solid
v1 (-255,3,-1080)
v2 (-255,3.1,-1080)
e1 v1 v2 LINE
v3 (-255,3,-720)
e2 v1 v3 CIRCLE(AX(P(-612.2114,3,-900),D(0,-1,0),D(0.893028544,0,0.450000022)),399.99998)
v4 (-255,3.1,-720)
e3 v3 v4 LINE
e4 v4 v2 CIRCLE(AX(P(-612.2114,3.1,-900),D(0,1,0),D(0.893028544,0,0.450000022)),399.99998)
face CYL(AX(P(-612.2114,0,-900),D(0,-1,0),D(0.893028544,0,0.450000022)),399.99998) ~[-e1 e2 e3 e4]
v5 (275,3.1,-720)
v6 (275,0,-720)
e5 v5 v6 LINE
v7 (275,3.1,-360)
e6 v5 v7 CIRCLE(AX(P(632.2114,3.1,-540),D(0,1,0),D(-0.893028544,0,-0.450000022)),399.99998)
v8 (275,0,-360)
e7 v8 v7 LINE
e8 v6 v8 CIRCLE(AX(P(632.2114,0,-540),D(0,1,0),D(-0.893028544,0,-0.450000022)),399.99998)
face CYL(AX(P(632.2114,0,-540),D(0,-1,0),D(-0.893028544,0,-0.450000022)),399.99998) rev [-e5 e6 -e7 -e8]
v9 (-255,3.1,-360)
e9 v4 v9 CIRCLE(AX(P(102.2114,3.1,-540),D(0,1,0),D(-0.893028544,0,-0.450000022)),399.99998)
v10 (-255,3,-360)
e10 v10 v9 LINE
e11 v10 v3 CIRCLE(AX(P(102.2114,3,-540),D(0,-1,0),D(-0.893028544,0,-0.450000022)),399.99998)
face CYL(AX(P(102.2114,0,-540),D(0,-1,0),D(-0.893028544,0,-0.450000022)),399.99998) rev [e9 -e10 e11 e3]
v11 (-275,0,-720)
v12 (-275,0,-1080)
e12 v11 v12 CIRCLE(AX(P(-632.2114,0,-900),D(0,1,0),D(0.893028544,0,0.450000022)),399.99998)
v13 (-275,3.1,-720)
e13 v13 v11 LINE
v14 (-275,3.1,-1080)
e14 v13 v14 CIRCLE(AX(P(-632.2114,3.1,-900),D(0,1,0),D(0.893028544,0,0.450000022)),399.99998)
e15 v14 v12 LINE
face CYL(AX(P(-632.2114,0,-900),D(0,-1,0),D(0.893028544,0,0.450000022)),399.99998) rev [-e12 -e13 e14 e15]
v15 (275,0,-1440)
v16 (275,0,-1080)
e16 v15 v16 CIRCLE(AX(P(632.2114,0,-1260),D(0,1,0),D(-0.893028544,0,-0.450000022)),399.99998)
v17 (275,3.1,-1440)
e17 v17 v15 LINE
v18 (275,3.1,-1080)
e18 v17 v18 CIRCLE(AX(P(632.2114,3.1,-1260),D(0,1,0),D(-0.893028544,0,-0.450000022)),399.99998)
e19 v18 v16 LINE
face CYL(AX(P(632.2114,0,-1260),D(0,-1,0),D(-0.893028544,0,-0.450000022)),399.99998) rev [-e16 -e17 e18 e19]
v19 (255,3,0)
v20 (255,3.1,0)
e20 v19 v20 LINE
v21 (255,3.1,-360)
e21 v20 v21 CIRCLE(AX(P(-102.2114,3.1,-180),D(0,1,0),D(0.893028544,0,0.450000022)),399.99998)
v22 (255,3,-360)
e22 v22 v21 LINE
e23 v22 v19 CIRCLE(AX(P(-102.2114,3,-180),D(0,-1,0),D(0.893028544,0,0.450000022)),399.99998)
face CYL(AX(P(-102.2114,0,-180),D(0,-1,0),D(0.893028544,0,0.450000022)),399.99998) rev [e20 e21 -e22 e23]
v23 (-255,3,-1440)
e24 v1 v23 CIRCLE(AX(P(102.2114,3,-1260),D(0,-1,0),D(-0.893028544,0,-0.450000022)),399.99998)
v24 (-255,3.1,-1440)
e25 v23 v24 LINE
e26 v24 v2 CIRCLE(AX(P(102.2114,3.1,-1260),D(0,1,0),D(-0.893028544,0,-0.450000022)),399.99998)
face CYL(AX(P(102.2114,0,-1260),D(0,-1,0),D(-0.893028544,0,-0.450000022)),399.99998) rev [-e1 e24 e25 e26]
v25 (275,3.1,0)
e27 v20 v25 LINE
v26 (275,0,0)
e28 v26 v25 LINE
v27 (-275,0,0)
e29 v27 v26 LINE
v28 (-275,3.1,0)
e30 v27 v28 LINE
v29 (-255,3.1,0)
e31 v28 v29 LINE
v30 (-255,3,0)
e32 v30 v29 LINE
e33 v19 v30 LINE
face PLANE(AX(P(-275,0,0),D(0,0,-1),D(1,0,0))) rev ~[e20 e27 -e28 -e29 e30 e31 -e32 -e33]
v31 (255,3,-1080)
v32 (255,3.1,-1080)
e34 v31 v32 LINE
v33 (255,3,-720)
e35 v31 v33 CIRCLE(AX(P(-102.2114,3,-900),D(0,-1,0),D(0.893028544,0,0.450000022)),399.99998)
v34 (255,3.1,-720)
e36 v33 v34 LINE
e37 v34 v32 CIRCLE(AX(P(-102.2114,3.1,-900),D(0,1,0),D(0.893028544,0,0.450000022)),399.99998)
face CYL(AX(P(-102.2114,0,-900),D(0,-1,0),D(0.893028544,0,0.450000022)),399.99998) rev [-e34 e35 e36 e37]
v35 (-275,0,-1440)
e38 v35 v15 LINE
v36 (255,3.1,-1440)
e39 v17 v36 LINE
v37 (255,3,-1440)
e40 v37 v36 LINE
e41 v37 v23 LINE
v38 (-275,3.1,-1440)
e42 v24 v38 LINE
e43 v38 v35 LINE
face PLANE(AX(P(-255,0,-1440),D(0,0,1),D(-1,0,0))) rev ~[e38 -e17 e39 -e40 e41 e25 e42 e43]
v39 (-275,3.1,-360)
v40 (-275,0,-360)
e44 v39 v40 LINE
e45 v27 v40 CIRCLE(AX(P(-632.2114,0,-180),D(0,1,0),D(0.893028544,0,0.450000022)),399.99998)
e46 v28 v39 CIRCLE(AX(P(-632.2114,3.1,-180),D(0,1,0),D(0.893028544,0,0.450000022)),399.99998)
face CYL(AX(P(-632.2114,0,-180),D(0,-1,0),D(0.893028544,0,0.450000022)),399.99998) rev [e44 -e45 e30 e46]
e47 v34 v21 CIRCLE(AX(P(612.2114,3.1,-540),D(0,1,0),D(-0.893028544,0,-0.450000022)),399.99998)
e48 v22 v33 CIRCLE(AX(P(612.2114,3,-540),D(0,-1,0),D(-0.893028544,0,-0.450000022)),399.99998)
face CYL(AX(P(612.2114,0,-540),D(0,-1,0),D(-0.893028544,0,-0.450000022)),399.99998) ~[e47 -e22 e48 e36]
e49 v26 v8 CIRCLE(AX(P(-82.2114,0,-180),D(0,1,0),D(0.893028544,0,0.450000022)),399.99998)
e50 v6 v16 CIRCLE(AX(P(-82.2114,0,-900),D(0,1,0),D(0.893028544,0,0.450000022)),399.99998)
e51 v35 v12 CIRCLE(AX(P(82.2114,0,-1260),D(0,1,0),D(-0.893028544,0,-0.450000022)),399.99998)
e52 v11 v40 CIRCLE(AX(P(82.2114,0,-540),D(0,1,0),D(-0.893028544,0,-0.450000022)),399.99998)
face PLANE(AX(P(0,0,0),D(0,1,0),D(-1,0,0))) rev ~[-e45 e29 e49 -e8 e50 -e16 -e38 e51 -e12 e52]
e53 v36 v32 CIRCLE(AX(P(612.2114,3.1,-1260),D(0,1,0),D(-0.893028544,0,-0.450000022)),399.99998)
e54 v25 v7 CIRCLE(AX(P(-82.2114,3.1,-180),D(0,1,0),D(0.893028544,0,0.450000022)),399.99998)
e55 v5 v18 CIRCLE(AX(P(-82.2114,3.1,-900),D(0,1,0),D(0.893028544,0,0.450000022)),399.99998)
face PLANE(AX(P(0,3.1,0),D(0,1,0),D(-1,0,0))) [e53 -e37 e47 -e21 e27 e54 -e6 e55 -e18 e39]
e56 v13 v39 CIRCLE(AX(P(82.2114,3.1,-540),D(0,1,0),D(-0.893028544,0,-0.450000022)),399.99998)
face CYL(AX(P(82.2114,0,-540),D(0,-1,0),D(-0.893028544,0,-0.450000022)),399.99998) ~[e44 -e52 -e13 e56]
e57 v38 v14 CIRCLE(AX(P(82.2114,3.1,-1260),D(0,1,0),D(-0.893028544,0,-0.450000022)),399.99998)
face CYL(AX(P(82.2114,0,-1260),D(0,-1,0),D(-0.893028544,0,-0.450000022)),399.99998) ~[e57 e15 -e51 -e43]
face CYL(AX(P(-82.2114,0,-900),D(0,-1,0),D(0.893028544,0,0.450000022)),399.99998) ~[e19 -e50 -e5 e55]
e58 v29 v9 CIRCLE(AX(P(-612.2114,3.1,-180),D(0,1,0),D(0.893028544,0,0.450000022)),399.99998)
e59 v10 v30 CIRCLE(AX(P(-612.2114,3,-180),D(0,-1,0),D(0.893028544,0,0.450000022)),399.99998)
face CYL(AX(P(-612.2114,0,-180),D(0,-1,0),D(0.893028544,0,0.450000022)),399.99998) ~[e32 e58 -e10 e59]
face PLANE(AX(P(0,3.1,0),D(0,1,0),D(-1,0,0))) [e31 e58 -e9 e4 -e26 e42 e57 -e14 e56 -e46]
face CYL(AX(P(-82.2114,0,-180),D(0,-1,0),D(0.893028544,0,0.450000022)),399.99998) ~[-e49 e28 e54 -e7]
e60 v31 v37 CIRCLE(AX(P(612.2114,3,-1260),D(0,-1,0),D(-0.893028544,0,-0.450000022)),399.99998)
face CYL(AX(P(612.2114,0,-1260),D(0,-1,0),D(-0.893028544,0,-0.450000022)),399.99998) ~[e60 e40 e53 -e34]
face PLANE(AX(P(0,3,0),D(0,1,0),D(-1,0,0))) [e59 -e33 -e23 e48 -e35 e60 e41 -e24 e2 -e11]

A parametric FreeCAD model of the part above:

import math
import FreeCAD as App
import Part
import Sketcher

doc = App.newDocument("Part")
body = doc.addObject("PartDesign::Body", "Body")

# Sketch on XZ plane
sketch1 = body.newObject("Sketcher::SketchObject", "Sketch")
sketch1.AttachmentSupport = (doc.getObject("XZ_Plane"), [""])
sketch1.MapMode = "FlatFace"
sketch1.addGeometry(Part.ArcOfCircle(Part.Circle(App.Vector(-632, -180, 0), App.Vector(0, 0, 1), 400), math.radians(-27), math.radians(27)), False)
sketch1.addGeometry(Part.LineSegment(App.Vector(-275, 0, 0), App.Vector(275, 0, 0)), False)
sketch1.addGeometry(Part.ArcOfCircle(Part.Circle(App.Vector(-82, -180, 0), App.Vector(0, 0, 1), 400), math.radians(-27), math.radians(27)), False)
sketch1.addGeometry(Part.ArcOfCircle(Part.Circle(App.Vector(632, -540, 0), App.Vector(0, 0, 1), 400), math.radians(153), math.radians(207)), False)
sketch1.addGeometry(Part.ArcOfCircle(Part.Circle(App.Vector(-82, -900, 0), App.Vector(0, 0, 1), 400), math.radians(-27), math.radians(27)), False)
sketch1.addGeometry(Part.ArcOfCircle(Part.Circle(App.Vector(632, -1260, 0), App.Vector(0, 0, 1), 400), math.radians(153), math.radians(207)), False)
sketch1.addGeometry(Part.LineSegment(App.Vector(275, -1440, 0), App.Vector(-275, -1440, 0)), False)
sketch1.addGeometry(Part.ArcOfCircle(Part.Circle(App.Vector(82, -1260, 0), App.Vector(0, 0, 1), 400), math.radians(153), math.radians(207)), False)
sketch1.addGeometry(Part.ArcOfCircle(Part.Circle(App.Vector(-632, -900, 0), App.Vector(0, 0, 1), 400), math.radians(-27), math.radians(27)), False)
sketch1.addGeometry(Part.ArcOfCircle(Part.Circle(App.Vector(82, -540, 0), App.Vector(0, 0, 1), 400), math.radians(153), math.radians(207)), False)
sketch1.addConstraint(Sketcher.Constraint("Coincident", 0, 2, 1, 1))
sketch1.addConstraint(Sketcher.Constraint("Coincident", 1, 2, 2, 2))
sketch1.addConstraint(Sketcher.Constraint("Tangent", 2, 1, 3, 1))
sketch1.addConstraint(Sketcher.Constraint("Tangent", 3, 2, 4, 2))
sketch1.addConstraint(Sketcher.Constraint("Tangent", 4, 1, 5, 1))
sketch1.addConstraint(Sketcher.Constraint("Coincident", 5, 2, 6, 1))
sketch1.addConstraint(Sketcher.Constraint("Coincident", 6, 2, 7, 2))
sketch1.addConstraint(Sketcher.Constraint("Tangent", 7, 1, 8, 1))
sketch1.addConstraint(Sketcher.Constraint("Tangent", 8, 2, 9, 2))
sketch1.addConstraint(Sketcher.Constraint("Tangent", 9, 1, 0, 1))
sketch1.addConstraint(Sketcher.Constraint("Horizontal", 1))
sketch1.addConstraint(Sketcher.Constraint("Horizontal", 6))
sketch1.addConstraint(Sketcher.Constraint("Equal", 0, 2))
sketch1.addConstraint(Sketcher.Constraint("Equal", 2, 3))
sketch1.addConstraint(Sketcher.Constraint("Equal", 3, 4))
sketch1.addConstraint(Sketcher.Constraint("Equal", 4, 5))
sketch1.addConstraint(Sketcher.Constraint("Equal", 5, 7))
sketch1.addConstraint(Sketcher.Constraint("Equal", 7, 8))
sketch1.addConstraint(Sketcher.Constraint("Equal", 8, 9))
sketch1.addConstraint(Sketcher.Constraint("Symmetric", 0, 2, 1, 2, -1, 1))
sketch1.addConstraint(Sketcher.Constraint("Horizontal", 0, 3, 2, 3))
sketch1.addConstraint(Sketcher.Constraint("Horizontal", 5, 3, 7, 3))
sketch1.addConstraint(Sketcher.Constraint("Horizontal", 4, 3, 8, 3))
sketch1.addConstraint(Sketcher.Constraint("Horizontal", 3, 3, 9, 3))
sketch1.addConstraint(Sketcher.Constraint("Vertical", 2, 3, 4, 3))
sketch1.addConstraint(Sketcher.Constraint("Vertical", 3, 3, 5, 3))
sketch1.addConstraint(Sketcher.Constraint("Vertical", 0, 2, 6, 2))
sketch1.addConstraint(Sketcher.Constraint("Radius", 0, 400.0))
sketch1.addConstraint(Sketcher.Constraint("DistanceX", 1, 1, 1, 2, 550.0))
sketch1.addConstraint(Sketcher.Constraint("DistanceY", 3, 3, 2, 3, 360.0))
sketch1.addConstraint(Sketcher.Constraint("DistanceY", 0, 3, -1, 1, 180.0))
pad1 = body.newObject("PartDesign::Pad", "Pad")
pad1.Profile = sketch1
pad1.Length = 3
pad1.Reversed = True

# Sketch on XZ plane
sketch2 = body.newObject("Sketcher::SketchObject", "Sketch001")
sketch2.AttachmentSupport = (doc.getObject("XZ_Plane"), [""])
sketch2.MapMode = "FlatFace"
sketch2.addGeometry(Part.ArcOfCircle(Part.Circle(App.Vector(-632, -180, 0), App.Vector(0, 0, 1), 400), math.radians(-27), math.radians(27)), False)
sketch2.addGeometry(Part.LineSegment(App.Vector(-275, 0, 0), App.Vector(-255, 0, 0)), False)
sketch2.addGeometry(Part.ArcOfCircle(Part.Circle(App.Vector(-612, -180, 0), App.Vector(0, 0, 1), 400), math.radians(-27), math.radians(27)), False)
sketch2.addGeometry(Part.ArcOfCircle(Part.Circle(App.Vector(102, -540, 0), App.Vector(0, 0, 1), 400), math.radians(153), math.radians(207)), False)
sketch2.addGeometry(Part.ArcOfCircle(Part.Circle(App.Vector(-612, -900, 0), App.Vector(0, 0, 1), 400), math.radians(-27), math.radians(27)), False)
sketch2.addGeometry(Part.ArcOfCircle(Part.Circle(App.Vector(102, -1260, 0), App.Vector(0, 0, 1), 400), math.radians(153), math.radians(207)), False)
sketch2.addGeometry(Part.LineSegment(App.Vector(-255, -1440, 0), App.Vector(-275, -1440, 0)), False)
sketch2.addGeometry(Part.ArcOfCircle(Part.Circle(App.Vector(82, -1260, 0), App.Vector(0, 0, 1), 400), math.radians(153), math.radians(207)), False)
sketch2.addGeometry(Part.ArcOfCircle(Part.Circle(App.Vector(-632, -900, 0), App.Vector(0, 0, 1), 400), math.radians(-27), math.radians(27)), False)
sketch2.addGeometry(Part.ArcOfCircle(Part.Circle(App.Vector(82, -540, 0), App.Vector(0, 0, 1), 400), math.radians(153), math.radians(207)), False)
sketch2.addGeometry(Part.ArcOfCircle(Part.Circle(App.Vector(-102, -180, 0), App.Vector(0, 0, 1), 400), math.radians(-27), math.radians(27)), False)
sketch2.addGeometry(Part.LineSegment(App.Vector(255, 0, 0), App.Vector(275, 0, 0)), False)
sketch2.addGeometry(Part.ArcOfCircle(Part.Circle(App.Vector(-82, -180, 0), App.Vector(0, 0, 1), 400), math.radians(-27), math.radians(27)), False)
sketch2.addGeometry(Part.ArcOfCircle(Part.Circle(App.Vector(632, -540, 0), App.Vector(0, 0, 1), 400), math.radians(153), math.radians(207)), False)
sketch2.addGeometry(Part.ArcOfCircle(Part.Circle(App.Vector(-82, -900, 0), App.Vector(0, 0, 1), 400), math.radians(-27), math.radians(27)), False)
sketch2.addGeometry(Part.ArcOfCircle(Part.Circle(App.Vector(632, -1260, 0), App.Vector(0, 0, 1), 400), math.radians(153), math.radians(207)), False)
sketch2.addGeometry(Part.LineSegment(App.Vector(275, -1440, 0), App.Vector(255, -1440, 0)), False)
sketch2.addGeometry(Part.ArcOfCircle(Part.Circle(App.Vector(612, -1260, 0), App.Vector(0, 0, 1), 400), math.radians(153), math.radians(207)), False)
sketch2.addGeometry(Part.ArcOfCircle(Part.Circle(App.Vector(-102, -900, 0), App.Vector(0, 0, 1), 400), math.radians(-27), math.radians(27)), False)
sketch2.addGeometry(Part.ArcOfCircle(Part.Circle(App.Vector(612, -540, 0), App.Vector(0, 0, 1), 400), math.radians(153), math.radians(207)), False)
sketch2.addConstraint(Sketcher.Constraint("Coincident", 0, 2, 1, 1))
sketch2.addConstraint(Sketcher.Constraint("Coincident", 1, 2, 2, 2))
sketch2.addConstraint(Sketcher.Constraint("Tangent", 2, 1, 3, 1))
sketch2.addConstraint(Sketcher.Constraint("Tangent", 3, 2, 4, 2))
sketch2.addConstraint(Sketcher.Constraint("Tangent", 4, 1, 5, 1))
sketch2.addConstraint(Sketcher.Constraint("Coincident", 5, 2, 6, 1))
sketch2.addConstraint(Sketcher.Constraint("Coincident", 6, 2, 7, 2))
sketch2.addConstraint(Sketcher.Constraint("Tangent", 7, 1, 8, 1))
sketch2.addConstraint(Sketcher.Constraint("Tangent", 8, 2, 9, 2))
sketch2.addConstraint(Sketcher.Constraint("Tangent", 9, 1, 0, 1))
sketch2.addConstraint(Sketcher.Constraint("Coincident", 10, 2, 11, 1))
sketch2.addConstraint(Sketcher.Constraint("Coincident", 11, 2, 12, 2))
sketch2.addConstraint(Sketcher.Constraint("Tangent", 12, 1, 13, 1))
sketch2.addConstraint(Sketcher.Constraint("Tangent", 13, 2, 14, 2))
sketch2.addConstraint(Sketcher.Constraint("Tangent", 14, 1, 15, 1))
sketch2.addConstraint(Sketcher.Constraint("Coincident", 15, 2, 16, 1))
sketch2.addConstraint(Sketcher.Constraint("Coincident", 16, 2, 17, 2))
sketch2.addConstraint(Sketcher.Constraint("Tangent", 17, 1, 18, 1))
sketch2.addConstraint(Sketcher.Constraint("Tangent", 18, 2, 19, 2))
sketch2.addConstraint(Sketcher.Constraint("Tangent", 19, 1, 10, 1))
sketch2.addConstraint(Sketcher.Constraint("Horizontal", 1))
sketch2.addConstraint(Sketcher.Constraint("Horizontal", 6))
sketch2.addConstraint(Sketcher.Constraint("Horizontal", 11))
sketch2.addConstraint(Sketcher.Constraint("Horizontal", 16))
sketch2.addConstraint(Sketcher.Constraint("Equal", 0, 2))
sketch2.addConstraint(Sketcher.Constraint("Equal", 2, 3))
sketch2.addConstraint(Sketcher.Constraint("Equal", 3, 4))
sketch2.addConstraint(Sketcher.Constraint("Equal", 4, 5))
sketch2.addConstraint(Sketcher.Constraint("Equal", 5, 7))
sketch2.addConstraint(Sketcher.Constraint("Equal", 7, 8))
sketch2.addConstraint(Sketcher.Constraint("Equal", 8, 9))
sketch2.addConstraint(Sketcher.Constraint("Equal", 9, 10))
sketch2.addConstraint(Sketcher.Constraint("Equal", 10, 12))
sketch2.addConstraint(Sketcher.Constraint("Equal", 12, 13))
sketch2.addConstraint(Sketcher.Constraint("Equal", 13, 14))
sketch2.addConstraint(Sketcher.Constraint("Equal", 14, 15))
sketch2.addConstraint(Sketcher.Constraint("Equal", 15, 17))
sketch2.addConstraint(Sketcher.Constraint("Equal", 17, 18))
sketch2.addConstraint(Sketcher.Constraint("Equal", 18, 19))
sketch2.addConstraint(Sketcher.Constraint("Symmetric", 1, 2, 10, 2, -1, 1))
sketch2.addConstraint(Sketcher.Constraint("Symmetric", 0, 2, 11, 2, -2))
sketch2.addConstraint(Sketcher.Constraint("Symmetric", 6, 2, 15, 2, -2))
sketch2.addConstraint(Sketcher.Constraint("Horizontal", 0, 3, 2, 3))
sketch2.addConstraint(Sketcher.Constraint("Horizontal", 5, 3, 7, 3))
sketch2.addConstraint(Sketcher.Constraint("Horizontal", 4, 3, 8, 3))
sketch2.addConstraint(Sketcher.Constraint("Horizontal", 3, 3, 9, 3))
sketch2.addConstraint(Sketcher.Constraint("Horizontal", 2, 3, 10, 3))
sketch2.addConstraint(Sketcher.Constraint("Horizontal", 10, 3, 12, 3))
sketch2.addConstraint(Sketcher.Constraint("Horizontal", 9, 3, 13, 3))
sketch2.addConstraint(Sketcher.Constraint("Horizontal", 8, 3, 14, 3))
sketch2.addConstraint(Sketcher.Constraint("Horizontal", 7, 3, 15, 3))
sketch2.addConstraint(Sketcher.Constraint("Horizontal", 15, 3, 17, 3))
sketch2.addConstraint(Sketcher.Constraint("Horizontal", 14, 3, 18, 3))
sketch2.addConstraint(Sketcher.Constraint("Horizontal", 13, 3, 19, 3))
sketch2.addConstraint(Sketcher.Constraint("Vertical", 2, 3, 4, 3))
sketch2.addConstraint(Sketcher.Constraint("Vertical", 3, 3, 5, 3))
sketch2.addConstraint(Sketcher.Constraint("Radius", 0, 400.0))
sketch2.addConstraint(Sketcher.Constraint("DistanceX", 1, 1, 1, 2, 20.0))
sketch2.addConstraint(Sketcher.Constraint("DistanceY", 3, 3, 2, 3, 360.0))
sketch2.addConstraint(Sketcher.Constraint("DistanceX", 0, 3, 12, 3, 550.0))
sketch2.addConstraint(Sketcher.Constraint("DistanceY", 0, 3, -1, 1, 180.0))
pad2 = body.newObject("PartDesign::Pad", "Pad001")
pad2.Profile = sketch2
pad2.Length = 3.1
pad2.Reversed = True

doc.recompute()
